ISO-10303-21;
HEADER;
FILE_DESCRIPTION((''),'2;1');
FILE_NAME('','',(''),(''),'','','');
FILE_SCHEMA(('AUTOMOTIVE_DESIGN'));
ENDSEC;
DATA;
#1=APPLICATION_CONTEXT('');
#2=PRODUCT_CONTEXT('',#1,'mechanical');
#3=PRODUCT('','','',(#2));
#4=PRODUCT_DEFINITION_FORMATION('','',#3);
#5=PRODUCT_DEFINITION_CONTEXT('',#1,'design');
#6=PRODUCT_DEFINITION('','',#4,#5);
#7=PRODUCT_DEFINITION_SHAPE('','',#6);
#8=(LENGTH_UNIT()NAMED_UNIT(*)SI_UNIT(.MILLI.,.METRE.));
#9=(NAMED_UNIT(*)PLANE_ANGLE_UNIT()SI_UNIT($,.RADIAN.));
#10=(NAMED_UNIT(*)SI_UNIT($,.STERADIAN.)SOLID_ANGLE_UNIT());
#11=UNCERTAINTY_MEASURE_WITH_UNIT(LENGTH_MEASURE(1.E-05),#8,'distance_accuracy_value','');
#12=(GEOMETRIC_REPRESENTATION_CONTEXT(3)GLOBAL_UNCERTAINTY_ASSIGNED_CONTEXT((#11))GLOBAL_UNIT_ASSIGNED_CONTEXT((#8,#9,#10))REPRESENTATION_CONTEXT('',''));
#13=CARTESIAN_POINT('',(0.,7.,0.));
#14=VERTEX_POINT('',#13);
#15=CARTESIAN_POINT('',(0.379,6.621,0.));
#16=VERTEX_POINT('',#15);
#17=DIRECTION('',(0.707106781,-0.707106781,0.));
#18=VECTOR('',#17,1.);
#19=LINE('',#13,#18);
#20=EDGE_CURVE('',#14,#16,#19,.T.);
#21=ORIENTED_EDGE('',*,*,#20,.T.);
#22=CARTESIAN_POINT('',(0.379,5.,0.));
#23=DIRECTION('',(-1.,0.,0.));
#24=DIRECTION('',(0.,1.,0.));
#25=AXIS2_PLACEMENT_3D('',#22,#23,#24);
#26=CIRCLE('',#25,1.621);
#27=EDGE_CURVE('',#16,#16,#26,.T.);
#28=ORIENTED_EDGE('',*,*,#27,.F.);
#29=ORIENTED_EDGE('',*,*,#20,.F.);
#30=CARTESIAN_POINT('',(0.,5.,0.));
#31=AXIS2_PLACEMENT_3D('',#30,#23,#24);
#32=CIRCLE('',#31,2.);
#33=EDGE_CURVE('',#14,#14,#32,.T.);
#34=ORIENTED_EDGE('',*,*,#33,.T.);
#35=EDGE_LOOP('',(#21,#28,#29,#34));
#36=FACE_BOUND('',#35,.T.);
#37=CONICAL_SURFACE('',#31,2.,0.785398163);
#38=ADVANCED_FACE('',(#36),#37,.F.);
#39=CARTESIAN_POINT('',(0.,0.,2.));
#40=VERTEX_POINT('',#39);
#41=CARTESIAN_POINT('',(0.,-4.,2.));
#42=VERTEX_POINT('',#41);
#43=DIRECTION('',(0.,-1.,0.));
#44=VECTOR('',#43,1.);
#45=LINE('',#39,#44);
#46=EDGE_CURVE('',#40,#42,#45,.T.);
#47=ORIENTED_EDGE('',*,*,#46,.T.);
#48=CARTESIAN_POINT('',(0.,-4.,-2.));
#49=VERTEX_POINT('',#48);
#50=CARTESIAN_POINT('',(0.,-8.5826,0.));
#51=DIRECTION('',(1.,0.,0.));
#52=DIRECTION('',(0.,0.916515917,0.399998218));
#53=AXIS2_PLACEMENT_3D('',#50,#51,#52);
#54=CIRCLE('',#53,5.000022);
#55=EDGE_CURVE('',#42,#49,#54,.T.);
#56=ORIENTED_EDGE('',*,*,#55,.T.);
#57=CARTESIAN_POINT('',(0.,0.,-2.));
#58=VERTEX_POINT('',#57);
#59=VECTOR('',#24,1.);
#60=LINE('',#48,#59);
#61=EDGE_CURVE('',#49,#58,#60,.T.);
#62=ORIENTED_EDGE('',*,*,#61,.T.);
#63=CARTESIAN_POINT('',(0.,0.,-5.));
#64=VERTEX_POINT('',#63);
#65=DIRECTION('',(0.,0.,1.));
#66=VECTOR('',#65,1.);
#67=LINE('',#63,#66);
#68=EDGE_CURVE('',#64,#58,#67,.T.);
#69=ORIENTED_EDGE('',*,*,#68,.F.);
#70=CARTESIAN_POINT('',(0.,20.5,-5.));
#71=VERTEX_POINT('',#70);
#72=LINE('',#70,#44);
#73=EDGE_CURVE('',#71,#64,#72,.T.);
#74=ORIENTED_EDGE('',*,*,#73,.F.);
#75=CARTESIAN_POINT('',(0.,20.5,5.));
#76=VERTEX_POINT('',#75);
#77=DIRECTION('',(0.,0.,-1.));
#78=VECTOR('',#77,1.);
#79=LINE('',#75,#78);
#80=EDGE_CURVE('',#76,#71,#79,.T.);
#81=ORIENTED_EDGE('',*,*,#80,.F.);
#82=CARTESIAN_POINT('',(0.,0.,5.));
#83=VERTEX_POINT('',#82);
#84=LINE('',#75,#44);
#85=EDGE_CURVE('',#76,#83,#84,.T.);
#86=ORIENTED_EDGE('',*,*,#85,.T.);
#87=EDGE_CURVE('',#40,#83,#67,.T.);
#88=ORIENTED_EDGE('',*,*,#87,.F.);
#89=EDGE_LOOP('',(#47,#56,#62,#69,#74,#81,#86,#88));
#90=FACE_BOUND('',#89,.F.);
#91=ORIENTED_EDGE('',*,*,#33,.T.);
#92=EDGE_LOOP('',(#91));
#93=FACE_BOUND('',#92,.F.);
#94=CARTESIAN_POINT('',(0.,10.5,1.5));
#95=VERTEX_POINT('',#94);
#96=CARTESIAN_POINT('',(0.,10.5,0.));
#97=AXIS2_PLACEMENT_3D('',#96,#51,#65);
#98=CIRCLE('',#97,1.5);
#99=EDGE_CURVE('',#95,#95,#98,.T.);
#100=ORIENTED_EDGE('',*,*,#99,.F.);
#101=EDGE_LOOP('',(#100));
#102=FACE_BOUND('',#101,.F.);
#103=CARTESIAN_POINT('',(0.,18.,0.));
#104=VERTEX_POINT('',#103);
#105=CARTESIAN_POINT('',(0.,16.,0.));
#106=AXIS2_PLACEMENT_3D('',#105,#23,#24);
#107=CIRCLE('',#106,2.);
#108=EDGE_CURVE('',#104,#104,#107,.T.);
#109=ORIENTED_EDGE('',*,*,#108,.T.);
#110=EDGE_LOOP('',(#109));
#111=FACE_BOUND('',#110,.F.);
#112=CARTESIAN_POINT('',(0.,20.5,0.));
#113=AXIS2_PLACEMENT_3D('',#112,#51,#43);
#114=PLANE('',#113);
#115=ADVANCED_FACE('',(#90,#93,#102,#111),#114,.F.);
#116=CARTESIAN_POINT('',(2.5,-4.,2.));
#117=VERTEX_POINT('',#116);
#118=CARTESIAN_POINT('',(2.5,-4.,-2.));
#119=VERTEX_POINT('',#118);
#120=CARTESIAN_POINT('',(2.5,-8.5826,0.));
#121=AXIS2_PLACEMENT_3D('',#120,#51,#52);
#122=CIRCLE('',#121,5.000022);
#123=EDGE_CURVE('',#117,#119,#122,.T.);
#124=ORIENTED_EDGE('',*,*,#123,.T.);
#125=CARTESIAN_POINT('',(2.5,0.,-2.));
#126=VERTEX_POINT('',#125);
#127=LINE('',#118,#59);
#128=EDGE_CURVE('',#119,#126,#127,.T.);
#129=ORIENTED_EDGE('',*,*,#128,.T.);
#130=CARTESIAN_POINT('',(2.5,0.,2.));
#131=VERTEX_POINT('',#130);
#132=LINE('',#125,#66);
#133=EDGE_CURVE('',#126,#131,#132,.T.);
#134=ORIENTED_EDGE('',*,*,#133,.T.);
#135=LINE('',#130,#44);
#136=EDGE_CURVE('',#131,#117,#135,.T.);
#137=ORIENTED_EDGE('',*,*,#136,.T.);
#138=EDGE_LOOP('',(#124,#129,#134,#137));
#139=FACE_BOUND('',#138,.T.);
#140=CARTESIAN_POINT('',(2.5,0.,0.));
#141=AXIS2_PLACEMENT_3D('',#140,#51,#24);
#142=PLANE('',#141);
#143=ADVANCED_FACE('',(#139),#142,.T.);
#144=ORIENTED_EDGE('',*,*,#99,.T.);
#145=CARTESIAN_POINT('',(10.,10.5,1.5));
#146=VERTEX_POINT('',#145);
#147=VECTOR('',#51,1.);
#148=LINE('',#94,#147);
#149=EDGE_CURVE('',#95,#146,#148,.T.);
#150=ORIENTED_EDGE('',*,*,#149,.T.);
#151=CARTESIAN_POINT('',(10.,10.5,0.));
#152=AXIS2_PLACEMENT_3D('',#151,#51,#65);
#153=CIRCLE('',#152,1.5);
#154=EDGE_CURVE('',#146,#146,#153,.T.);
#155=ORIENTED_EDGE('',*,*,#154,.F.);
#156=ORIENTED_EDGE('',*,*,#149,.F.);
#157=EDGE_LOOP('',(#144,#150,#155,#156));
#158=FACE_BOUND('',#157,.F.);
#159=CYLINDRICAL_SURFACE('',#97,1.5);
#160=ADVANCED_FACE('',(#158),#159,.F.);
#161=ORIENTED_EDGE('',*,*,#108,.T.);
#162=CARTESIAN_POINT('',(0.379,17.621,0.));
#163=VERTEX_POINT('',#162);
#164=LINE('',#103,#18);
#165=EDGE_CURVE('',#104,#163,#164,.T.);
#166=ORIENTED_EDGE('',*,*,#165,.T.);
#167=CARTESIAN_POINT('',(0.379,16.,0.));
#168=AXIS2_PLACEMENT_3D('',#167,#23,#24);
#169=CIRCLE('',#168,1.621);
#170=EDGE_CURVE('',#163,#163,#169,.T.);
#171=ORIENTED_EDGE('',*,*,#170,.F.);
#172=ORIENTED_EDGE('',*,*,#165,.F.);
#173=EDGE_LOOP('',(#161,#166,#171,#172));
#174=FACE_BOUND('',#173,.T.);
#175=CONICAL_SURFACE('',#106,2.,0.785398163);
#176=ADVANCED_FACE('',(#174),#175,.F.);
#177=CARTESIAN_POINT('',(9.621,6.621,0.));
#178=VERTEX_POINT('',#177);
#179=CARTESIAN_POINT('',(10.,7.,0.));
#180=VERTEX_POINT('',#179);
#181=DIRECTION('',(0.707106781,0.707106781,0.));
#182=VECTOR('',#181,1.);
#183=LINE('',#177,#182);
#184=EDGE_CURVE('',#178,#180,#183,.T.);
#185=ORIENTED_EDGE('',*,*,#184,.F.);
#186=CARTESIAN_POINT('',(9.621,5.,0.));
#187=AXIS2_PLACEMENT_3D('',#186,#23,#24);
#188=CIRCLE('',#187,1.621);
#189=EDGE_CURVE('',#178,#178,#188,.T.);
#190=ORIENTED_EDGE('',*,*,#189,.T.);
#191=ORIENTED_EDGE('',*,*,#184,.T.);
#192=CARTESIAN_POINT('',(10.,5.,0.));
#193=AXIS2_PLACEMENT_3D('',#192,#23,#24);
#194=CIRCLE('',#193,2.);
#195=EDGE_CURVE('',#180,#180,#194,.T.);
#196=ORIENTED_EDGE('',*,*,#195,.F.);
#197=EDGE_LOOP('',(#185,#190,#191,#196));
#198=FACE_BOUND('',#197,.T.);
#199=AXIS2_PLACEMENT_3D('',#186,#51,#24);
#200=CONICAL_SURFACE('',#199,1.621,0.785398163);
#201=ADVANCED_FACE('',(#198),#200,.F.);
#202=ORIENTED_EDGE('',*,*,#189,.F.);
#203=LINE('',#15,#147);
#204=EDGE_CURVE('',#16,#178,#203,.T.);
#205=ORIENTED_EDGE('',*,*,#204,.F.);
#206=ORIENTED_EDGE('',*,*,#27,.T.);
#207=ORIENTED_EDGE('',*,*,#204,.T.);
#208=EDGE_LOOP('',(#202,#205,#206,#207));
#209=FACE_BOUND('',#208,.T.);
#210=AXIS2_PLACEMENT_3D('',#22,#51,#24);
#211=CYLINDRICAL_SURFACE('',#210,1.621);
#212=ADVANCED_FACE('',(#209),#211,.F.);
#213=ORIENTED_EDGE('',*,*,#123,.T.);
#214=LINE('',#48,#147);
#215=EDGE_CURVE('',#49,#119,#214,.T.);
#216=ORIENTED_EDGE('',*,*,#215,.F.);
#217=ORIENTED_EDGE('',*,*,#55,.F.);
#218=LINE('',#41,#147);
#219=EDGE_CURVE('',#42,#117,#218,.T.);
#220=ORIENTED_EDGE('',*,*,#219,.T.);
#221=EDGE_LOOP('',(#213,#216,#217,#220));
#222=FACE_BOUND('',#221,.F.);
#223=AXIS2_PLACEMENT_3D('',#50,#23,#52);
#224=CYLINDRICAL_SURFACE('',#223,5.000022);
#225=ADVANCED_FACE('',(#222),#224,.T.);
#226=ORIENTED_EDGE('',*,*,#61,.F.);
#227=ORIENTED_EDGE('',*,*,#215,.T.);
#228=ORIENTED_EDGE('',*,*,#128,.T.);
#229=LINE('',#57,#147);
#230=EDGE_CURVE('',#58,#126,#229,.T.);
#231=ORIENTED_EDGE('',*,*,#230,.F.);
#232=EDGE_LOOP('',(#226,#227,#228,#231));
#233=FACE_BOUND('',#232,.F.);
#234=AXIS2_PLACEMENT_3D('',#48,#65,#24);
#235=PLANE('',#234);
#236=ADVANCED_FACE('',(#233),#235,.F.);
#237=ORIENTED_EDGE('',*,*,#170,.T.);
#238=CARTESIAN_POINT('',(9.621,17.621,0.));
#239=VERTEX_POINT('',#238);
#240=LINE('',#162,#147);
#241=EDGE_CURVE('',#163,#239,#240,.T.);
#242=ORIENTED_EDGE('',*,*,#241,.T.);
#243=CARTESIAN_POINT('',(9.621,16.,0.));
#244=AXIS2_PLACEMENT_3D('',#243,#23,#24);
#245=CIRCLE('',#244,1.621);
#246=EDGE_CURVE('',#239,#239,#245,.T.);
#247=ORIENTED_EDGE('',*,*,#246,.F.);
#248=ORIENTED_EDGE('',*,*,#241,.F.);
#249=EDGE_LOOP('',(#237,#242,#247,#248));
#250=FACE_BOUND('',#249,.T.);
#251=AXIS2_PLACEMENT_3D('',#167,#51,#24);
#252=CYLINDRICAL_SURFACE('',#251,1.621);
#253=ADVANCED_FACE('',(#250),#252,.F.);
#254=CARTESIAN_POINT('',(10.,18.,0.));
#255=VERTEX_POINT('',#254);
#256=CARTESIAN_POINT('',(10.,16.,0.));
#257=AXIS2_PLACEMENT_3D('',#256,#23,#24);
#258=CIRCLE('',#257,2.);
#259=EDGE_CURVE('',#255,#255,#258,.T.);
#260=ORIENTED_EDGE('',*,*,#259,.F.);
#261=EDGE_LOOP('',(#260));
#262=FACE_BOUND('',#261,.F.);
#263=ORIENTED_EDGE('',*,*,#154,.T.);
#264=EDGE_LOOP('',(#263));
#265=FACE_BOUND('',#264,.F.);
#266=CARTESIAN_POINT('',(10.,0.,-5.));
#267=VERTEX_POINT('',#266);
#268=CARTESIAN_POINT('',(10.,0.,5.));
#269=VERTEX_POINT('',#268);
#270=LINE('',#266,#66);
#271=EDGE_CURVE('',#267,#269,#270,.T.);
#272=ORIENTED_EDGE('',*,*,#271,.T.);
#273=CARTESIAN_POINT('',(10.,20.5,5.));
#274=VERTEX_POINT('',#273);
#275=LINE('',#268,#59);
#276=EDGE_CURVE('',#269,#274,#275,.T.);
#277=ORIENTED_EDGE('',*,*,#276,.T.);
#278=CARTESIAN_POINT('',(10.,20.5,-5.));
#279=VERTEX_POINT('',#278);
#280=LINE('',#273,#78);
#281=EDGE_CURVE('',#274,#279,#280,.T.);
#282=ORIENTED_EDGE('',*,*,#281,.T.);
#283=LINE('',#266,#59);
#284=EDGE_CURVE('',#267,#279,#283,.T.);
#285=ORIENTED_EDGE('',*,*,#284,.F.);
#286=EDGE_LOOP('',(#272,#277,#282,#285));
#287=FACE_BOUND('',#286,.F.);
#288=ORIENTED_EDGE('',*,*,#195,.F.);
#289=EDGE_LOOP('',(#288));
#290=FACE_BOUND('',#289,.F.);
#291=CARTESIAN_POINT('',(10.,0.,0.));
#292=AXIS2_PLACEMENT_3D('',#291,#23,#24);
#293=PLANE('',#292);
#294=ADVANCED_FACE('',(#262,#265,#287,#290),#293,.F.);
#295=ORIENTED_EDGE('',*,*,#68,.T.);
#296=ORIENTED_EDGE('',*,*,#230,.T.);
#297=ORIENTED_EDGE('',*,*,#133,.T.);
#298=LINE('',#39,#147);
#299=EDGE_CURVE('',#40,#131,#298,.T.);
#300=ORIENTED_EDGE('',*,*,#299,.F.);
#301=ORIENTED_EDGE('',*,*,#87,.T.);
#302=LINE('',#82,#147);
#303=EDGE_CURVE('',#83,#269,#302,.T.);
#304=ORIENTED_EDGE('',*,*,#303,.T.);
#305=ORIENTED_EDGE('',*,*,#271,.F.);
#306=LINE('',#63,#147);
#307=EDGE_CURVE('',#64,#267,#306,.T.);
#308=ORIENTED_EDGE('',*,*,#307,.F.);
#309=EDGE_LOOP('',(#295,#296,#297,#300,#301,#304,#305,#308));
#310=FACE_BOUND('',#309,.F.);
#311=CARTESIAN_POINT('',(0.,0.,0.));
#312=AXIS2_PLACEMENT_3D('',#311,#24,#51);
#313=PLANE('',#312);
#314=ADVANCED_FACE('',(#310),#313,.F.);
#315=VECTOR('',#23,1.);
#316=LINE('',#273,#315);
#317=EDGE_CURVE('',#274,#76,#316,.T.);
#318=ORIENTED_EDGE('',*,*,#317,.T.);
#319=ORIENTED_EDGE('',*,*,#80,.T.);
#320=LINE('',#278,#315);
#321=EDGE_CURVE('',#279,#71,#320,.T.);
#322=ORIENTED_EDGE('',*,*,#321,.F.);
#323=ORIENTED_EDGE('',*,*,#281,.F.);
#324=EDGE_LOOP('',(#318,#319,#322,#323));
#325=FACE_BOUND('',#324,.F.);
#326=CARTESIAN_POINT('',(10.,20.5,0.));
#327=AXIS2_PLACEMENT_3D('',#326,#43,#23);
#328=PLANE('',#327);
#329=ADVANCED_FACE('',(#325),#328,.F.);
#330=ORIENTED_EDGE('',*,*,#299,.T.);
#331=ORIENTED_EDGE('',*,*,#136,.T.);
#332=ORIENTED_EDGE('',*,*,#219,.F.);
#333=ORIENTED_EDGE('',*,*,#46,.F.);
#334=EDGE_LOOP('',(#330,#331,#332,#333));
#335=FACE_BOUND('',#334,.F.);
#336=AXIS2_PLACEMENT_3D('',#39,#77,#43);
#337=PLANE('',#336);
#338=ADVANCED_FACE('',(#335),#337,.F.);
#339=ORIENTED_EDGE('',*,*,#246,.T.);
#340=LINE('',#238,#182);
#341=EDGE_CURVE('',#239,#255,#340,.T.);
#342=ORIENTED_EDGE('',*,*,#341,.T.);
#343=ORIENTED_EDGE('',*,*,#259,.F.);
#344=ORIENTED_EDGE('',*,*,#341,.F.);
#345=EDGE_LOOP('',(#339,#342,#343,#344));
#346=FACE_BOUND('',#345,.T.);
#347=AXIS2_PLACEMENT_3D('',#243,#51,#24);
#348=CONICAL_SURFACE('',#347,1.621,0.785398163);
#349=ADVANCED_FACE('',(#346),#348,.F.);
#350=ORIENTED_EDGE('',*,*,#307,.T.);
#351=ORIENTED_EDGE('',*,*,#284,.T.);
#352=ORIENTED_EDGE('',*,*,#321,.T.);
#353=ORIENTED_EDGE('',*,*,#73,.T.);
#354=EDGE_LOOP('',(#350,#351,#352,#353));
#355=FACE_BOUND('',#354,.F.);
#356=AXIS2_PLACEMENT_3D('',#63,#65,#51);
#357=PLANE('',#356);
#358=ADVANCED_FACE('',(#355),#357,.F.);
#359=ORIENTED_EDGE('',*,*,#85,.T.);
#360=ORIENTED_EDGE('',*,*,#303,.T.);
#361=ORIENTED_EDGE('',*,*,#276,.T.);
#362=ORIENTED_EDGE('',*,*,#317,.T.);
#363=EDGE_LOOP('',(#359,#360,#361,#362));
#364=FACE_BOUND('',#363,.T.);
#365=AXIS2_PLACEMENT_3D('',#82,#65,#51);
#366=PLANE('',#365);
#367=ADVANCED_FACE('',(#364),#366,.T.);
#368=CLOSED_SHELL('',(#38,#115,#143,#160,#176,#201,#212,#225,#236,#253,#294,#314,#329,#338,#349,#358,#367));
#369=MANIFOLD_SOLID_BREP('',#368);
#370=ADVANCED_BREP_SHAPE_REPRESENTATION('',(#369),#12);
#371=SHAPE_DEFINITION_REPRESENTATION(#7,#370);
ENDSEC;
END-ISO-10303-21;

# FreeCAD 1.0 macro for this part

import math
import FreeCAD as App
import Part
import Sketcher
from FreeCAD import Vector
Q = App.Units.Quantity


def add_polygon(sketch, points):
    """Adds a closed chain of lines whose ends are joined by coincident constraints."""
    first, n = sketch.GeometryCount, len(points)
    for a, b in zip(points, points[1:] + points[:1]):
        sketch.addGeometry(Part.LineSegment(App.Vector(*a, 0), App.Vector(*b, 0)), False)
    for i in range(n):
        sketch.addConstraint(Sketcher.Constraint("Coincident", first + i, 2, first + (i + 1) % n, 1))

doc = App.newDocument("Part")
params = doc.addObject("Spreadsheet::Sheet", "Params")
for row, (alias, value) in enumerate([
    ("sketch1_width", "10 mm"),
    ("sketch1_height", "20.5 mm"),
    ("pad1_length", "10 mm"),
    ("sketch2_diameter", "3 mm"),
    ("hole_diameter", "3 mm"),
    ("hole_depth", "10 mm"),
    ("sketch3_width", "10 mm"),
    ("sketch3_height", "2 mm"),
    ("groove_angle", "360 deg"),
    ("sketch4_width", "10 mm"),
    ("sketch4_height", "2 mm"),
    ("groove2_angle", "360 deg"),
    ("sketch5_radius", "5 mm"),
    ("sketch5_width", "4 mm"),
    ("pad2_length", "2.5 mm"),
], start=1):
    params.set(f"A{row}", alias)
    params.set(f"B{row}", "=" + value)
    params.setAlias(f"B{row}", alias)

body = doc.addObject("PartDesign::Body", "Body")

sketch1 = body.newObject("Sketcher::SketchObject", "Sketch")
sketch1.AttachmentSupport = (doc.getObject("XY_Plane"), [""])
sketch1.MapMode = "FlatFace"
add_polygon(sketch1, [(0, 20.5), (0, 0), (10, 0), (10, 20.5)])
sketch1.addConstraint(Sketcher.Constraint("Vertical", 0))
sketch1.addConstraint(Sketcher.Constraint("Horizontal", 1))
sketch1.addConstraint(Sketcher.Constraint("Vertical", 2))
sketch1.addConstraint(Sketcher.Constraint("Horizontal", 3))
sketch1.addConstraint(Sketcher.Constraint("Coincident", 0, 2, -1, 1))
sketch1.addConstraint(Sketcher.Constraint("DistanceX", 1, 1, 1, 2, Q("10 mm")))
sketch1.addConstraint(Sketcher.Constraint("DistanceY", 0, 2, 0, 1, Q("20.5 mm")))
sketch1.setExpression("Constraints[9]", "Params.sketch1_width")
sketch1.setExpression("Constraints[10]", "Params.sketch1_height")
pad1 = body.newObject("PartDesign::Pad", "Pad")
pad1.Profile = sketch1
pad1.setExpression("Length", "Params.pad1_length")
pad1.Midplane = True

sketch2 = body.newObject("Sketcher::SketchObject", "Sketch001")
sketch2.AttachmentSupport = (doc.getObject("YZ_Plane"), [""])
sketch2.MapMode = "FlatFace"
sketch2.addGeometry(Part.Circle(Vector(10.5, 0, 0), Vector(0, 0, 1), 1.5), False)
sketch2.addConstraint(Sketcher.Constraint("PointOnObject", 0, 3, -1))
sketch2.addConstraint(Sketcher.Constraint("Diameter", 0, Q("3 mm")))
sketch2.addConstraint(Sketcher.Constraint("DistanceX", -1, 1, 0, 3, Q("10.5 mm")))
sketch2.setExpression("Constraints[1]", "Params.sketch2_diameter")
doc.recompute()
hole = body.newObject("PartDesign::Hole", "Hole")
hole.Profile = sketch2
hole.ThreadType = "None"
hole.setExpression("Diameter", "Params.hole_diameter")
hole.DepthType = "Dimension"
hole.setExpression("Depth", "Params.hole_depth")
hole.DrillPoint = "Flat"
hole.Reversed = True

sketch3 = body.newObject("Sketcher::SketchObject", "Sketch002")
sketch3.AttachmentSupport = (doc.getObject("XY_Plane"), [""])
sketch3.MapMode = "FlatFace"
add_polygon(sketch3, [(0, 5), (10, 5), (10, 7), (9.621, 6.621), (0.379, 6.621), (0, 7)])
sketch3.addGeometry(Part.LineSegment(Vector(10, 5, 0), Vector(0, 5, 0)), True)
sketch3.addConstraint(Sketcher.Constraint("Horizontal", 0))
sketch3.addConstraint(Sketcher.Constraint("Vertical", 1))
sketch3.addConstraint(Sketcher.Constraint("Horizontal", 3))
sketch3.addConstraint(Sketcher.Constraint("Vertical", 5))
sketch3.addConstraint(Sketcher.Constraint("Horizontal", 6))
sketch3.addConstraint(Sketcher.Constraint("Coincident", 6, 1, 0, 2))
sketch3.addConstraint(Sketcher.Constraint("PointOnObject", 4, 2, -2))
sketch3.addConstraint(Sketcher.Constraint("PointOnObject", 6, 2, -2))
sketch3.addConstraint(Sketcher.Constraint("Perpendicular", 2, 4))
sketch3.addConstraint(Sketcher.Constraint("Horizontal", 1, 2, 4, 2))
sketch3.addConstraint(Sketcher.Constraint("Equal", 2, 4))
sketch3.addConstraint(Sketcher.Constraint("DistanceX", 0, 1, 0, 2, Q("10 mm")))
sketch3.addConstraint(Sketcher.Constraint("DistanceY", 1, 1, 1, 2, Q("2 mm")))
sketch3.addConstraint(Sketcher.Constraint("DistanceY", -1, 1, 0, 2, Q("5 mm")))
sketch3.addConstraint(Sketcher.Constraint("DistanceX", 3, 2, 3, 1, Q("9.242 mm")))
sketch3.setExpression("Constraints[17]", "Params.sketch3_width")
sketch3.setExpression("Constraints[18]", "Params.sketch3_height")
groove = body.newObject("PartDesign::Groove", "Groove")
groove.Profile = sketch3
groove.ReferenceAxis = (sketch3, ["Axis0"])
groove.setExpression("Angle", "Params.groove_angle")

sketch4 = body.newObject("Sketcher::SketchObject", "Sketch003")
sketch4.AttachmentSupport = (doc.getObject("XY_Plane"), [""])
sketch4.MapMode = "FlatFace"
add_polygon(sketch4, [(0, 16), (10, 16), (10, 18), (9.621, 17.621), (0.379, 17.621), (0, 18)])
sketch4.addGeometry(Part.LineSegment(Vector(10, 16, 0), Vector(0, 16, 0)), True)
sketch4.addConstraint(Sketcher.Constraint("Horizontal", 0))
sketch4.addConstraint(Sketcher.Constraint("Vertical", 1))
sketch4.addConstraint(Sketcher.Constraint("Horizontal", 3))
sketch4.addConstraint(Sketcher.Constraint("Vertical", 5))
sketch4.addConstraint(Sketcher.Constraint("Horizontal", 6))
sketch4.addConstraint(Sketcher.Constraint("Coincident", 6, 1, 0, 2))
sketch4.addConstraint(Sketcher.Constraint("PointOnObject", 4, 2, -2))
sketch4.addConstraint(Sketcher.Constraint("PointOnObject", 6, 2, -2))
sketch4.addConstraint(Sketcher.Constraint("Perpendicular", 2, 4))
sketch4.addConstraint(Sketcher.Constraint("Horizontal", 1, 2, 4, 2))
sketch4.addConstraint(Sketcher.Constraint("Equal", 2, 4))
sketch4.addConstraint(Sketcher.Constraint("DistanceX", 0, 1, 0, 2, Q("10 mm")))
sketch4.addConstraint(Sketcher.Constraint("DistanceY", 1, 1, 1, 2, Q("2 mm")))
sketch4.addConstraint(Sketcher.Constraint("DistanceY", -1, 1, 0, 2, Q("16 mm")))
sketch4.addConstraint(Sketcher.Constraint("DistanceX", 3, 2, 3, 1, Q("9.242 mm")))
sketch4.setExpression("Constraints[17]", "Params.sketch4_width")
sketch4.setExpression("Constraints[18]", "Params.sketch4_height")
groove2 = body.newObject("PartDesign::Groove", "Groove001")
groove2.Profile = sketch4
groove2.ReferenceAxis = (sketch4, ["Axis0"])
groove2.setExpression("Angle", "Params.groove2_angle")

sketch5 = body.newObject("Sketcher::SketchObject", "Sketch004")
sketch5.AttachmentSupport = (doc.getObject("YZ_Plane"), [""])
sketch5.MapMode = "FlatFace"
sketch5.addGeometry(Part.LineSegment(Vector(0, 2, 0), Vector(-4, 2, 0)), False)
sketch5.addGeometry(Part.ArcOfCircle(Part.Circle(Vector(-8.5826, 0, 0), Vector(0, 0, 1), 5.000022), math.radians(23.578067), math.radians(336.421933)), False)
sketch5.addGeometry(Part.LineSegment(Vector(-4, -2, 0), Vector(0, -2, 0)), False)
sketch5.addGeometry(Part.LineSegment(Vector(0, -2, 0), Vector(0, 2, 0)), False)
sketch5.addConstraint(Sketcher.Constraint("Coincident", 0, 2, 1, 1))
sketch5.addConstraint(Sketcher.Constraint("Coincident", 1, 2, 2, 1))
sketch5.addConstraint(Sketcher.Constraint("Coincident", 2, 2, 3, 1))
sketch5.addConstraint(Sketcher.Constraint("Coincident", 3, 2, 0, 1))
sketch5.addConstraint(Sketcher.Constraint("Horizontal", 0))
sketch5.addConstraint(Sketcher.Constraint("Horizontal", 2))
sketch5.addConstraint(Sketcher.Constraint("Vertical", 3))
sketch5.addConstraint(Sketcher.Constraint("Symmetric", 2, 2, 3, 2, -1, 1))
sketch5.addConstraint(Sketcher.Constraint("PointOnObject", 1, 3, -1))
sketch5.addConstraint(Sketcher.Constraint("Equal", 2, 3))
sketch5.addConstraint(Sketcher.Constraint("Radius", 1, Q("5 mm")))
sketch5.addConstraint(Sketcher.Constraint("DistanceX", 0, 2, 0, 1, Q("4 mm")))
sketch5.setExpression("Constraints[10]", "Params.sketch5_radius")
sketch5.setExpression("Constraints[11]", "Params.sketch5_width")
pad2 = body.newObject("PartDesign::Pad", "Pad001")
pad2.Profile = sketch5
pad2.setExpression("Length", "Params.pad2_length")

doc.recompute()
